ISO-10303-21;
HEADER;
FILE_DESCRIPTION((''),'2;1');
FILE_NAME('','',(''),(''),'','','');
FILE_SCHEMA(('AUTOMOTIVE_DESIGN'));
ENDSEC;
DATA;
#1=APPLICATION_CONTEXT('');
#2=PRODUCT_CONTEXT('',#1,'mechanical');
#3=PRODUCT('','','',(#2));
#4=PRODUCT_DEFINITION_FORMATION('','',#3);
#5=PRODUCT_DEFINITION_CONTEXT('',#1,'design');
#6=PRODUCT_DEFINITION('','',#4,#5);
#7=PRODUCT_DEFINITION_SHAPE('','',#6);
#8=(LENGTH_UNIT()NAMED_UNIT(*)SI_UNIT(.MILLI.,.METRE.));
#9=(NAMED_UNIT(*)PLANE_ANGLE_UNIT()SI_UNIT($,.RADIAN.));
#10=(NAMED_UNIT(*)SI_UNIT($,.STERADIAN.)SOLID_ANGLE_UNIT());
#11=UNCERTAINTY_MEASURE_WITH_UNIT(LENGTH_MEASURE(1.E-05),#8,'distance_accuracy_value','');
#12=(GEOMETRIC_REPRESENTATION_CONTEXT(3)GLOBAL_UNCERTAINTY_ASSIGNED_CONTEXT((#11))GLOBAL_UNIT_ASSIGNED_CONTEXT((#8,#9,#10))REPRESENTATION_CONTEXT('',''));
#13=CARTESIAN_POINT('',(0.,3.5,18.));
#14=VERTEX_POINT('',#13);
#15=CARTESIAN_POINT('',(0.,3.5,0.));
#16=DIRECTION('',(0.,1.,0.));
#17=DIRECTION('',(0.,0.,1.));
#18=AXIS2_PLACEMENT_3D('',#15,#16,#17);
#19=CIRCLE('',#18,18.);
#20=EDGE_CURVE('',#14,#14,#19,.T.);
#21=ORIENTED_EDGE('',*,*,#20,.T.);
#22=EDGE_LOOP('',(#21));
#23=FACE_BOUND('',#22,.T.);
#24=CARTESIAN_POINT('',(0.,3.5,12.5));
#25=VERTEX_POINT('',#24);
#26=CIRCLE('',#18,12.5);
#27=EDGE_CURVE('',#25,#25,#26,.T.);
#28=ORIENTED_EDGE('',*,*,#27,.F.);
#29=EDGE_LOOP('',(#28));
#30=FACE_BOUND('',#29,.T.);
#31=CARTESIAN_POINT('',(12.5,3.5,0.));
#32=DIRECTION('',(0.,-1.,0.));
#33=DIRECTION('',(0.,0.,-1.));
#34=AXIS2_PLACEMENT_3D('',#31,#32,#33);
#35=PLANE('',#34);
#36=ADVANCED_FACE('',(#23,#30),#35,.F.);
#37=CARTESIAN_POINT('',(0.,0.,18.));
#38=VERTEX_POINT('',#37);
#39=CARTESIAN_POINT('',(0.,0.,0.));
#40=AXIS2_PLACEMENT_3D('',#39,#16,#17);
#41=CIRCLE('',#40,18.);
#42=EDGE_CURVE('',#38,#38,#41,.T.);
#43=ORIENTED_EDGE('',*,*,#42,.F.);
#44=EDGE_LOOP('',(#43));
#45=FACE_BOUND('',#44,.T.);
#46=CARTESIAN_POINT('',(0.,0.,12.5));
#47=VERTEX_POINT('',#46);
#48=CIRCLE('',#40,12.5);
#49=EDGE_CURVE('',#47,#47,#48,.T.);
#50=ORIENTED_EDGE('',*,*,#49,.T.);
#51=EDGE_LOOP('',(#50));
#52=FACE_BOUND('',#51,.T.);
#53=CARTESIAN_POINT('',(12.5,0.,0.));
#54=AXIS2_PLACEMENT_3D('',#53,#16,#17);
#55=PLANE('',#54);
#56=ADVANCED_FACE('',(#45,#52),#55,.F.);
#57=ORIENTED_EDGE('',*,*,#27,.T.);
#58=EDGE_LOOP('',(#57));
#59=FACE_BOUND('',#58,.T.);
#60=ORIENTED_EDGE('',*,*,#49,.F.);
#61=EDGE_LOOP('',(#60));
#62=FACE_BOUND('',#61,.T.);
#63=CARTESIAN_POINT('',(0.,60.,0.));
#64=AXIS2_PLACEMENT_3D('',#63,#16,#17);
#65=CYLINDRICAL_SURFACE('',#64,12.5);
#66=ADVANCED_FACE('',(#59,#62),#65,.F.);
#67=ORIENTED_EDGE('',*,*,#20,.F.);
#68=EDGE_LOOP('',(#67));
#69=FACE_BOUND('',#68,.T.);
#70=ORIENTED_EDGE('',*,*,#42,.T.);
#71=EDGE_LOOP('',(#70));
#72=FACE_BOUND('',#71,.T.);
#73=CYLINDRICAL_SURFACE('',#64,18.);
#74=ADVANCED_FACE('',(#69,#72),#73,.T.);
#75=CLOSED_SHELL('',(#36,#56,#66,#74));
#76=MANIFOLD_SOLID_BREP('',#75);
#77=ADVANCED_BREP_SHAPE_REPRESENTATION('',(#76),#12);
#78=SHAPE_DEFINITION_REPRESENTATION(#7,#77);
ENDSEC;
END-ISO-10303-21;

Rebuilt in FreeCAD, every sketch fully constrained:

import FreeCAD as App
import Part
import Sketcher

V = App.Vector


def add_polygon(sketch, points):
    """Adds a closed chain of lines whose ends are joined by coincident constraints."""
    first, n = sketch.GeometryCount, len(points)
    for a, b in zip(points, points[1:] + points[:1]):
        sketch.addGeometry(Part.LineSegment(App.Vector(*a, 0), App.Vector(*b, 0)), False)
    for i in range(n):
        sketch.addConstraint(Sketcher.Constraint("Coincident", first + i, 2, first + (i + 1) % n, 1))

doc = App.newDocument("Part")
body = doc.addObject("PartDesign::Body", "Body")

# Sketch on XY plane
sketch1 = body.newObject("Sketcher::SketchObject", "Sketch")
sketch1.AttachmentSupport = (doc.getObject("XY_Plane"), [""])
sketch1.MapMode = "FlatFace"
add_polygon(sketch1, [(12.5, 3.5), (12.5, 0), (18, 0), (18, 3.5)])  # lines 0-3
sketch1.addConstraint([
    Sketcher.Constraint("Vertical", 0),
    Sketcher.Constraint("Horizontal", 1),
    Sketcher.Constraint("Vertical", 2),
    Sketcher.Constraint("Horizontal", 3),
    Sketcher.Constraint("PointOnObject", 0, 2, -1),
    Sketcher.Constraint("DistanceX", 1, 1, 1, 2, 5.5),
    Sketcher.Constraint("DistanceY", 0, 2, 0, 1, 3.5),
    Sketcher.Constraint("DistanceX", -1, 1, 1, 2, 18.0),
])
revolution = body.newObject("PartDesign::Revolution", "Revolution")
revolution.Profile = sketch1
revolution.ReferenceAxis = (sketch1, ["V_Axis"])
revolution.Angle = 360

doc.recompute()
